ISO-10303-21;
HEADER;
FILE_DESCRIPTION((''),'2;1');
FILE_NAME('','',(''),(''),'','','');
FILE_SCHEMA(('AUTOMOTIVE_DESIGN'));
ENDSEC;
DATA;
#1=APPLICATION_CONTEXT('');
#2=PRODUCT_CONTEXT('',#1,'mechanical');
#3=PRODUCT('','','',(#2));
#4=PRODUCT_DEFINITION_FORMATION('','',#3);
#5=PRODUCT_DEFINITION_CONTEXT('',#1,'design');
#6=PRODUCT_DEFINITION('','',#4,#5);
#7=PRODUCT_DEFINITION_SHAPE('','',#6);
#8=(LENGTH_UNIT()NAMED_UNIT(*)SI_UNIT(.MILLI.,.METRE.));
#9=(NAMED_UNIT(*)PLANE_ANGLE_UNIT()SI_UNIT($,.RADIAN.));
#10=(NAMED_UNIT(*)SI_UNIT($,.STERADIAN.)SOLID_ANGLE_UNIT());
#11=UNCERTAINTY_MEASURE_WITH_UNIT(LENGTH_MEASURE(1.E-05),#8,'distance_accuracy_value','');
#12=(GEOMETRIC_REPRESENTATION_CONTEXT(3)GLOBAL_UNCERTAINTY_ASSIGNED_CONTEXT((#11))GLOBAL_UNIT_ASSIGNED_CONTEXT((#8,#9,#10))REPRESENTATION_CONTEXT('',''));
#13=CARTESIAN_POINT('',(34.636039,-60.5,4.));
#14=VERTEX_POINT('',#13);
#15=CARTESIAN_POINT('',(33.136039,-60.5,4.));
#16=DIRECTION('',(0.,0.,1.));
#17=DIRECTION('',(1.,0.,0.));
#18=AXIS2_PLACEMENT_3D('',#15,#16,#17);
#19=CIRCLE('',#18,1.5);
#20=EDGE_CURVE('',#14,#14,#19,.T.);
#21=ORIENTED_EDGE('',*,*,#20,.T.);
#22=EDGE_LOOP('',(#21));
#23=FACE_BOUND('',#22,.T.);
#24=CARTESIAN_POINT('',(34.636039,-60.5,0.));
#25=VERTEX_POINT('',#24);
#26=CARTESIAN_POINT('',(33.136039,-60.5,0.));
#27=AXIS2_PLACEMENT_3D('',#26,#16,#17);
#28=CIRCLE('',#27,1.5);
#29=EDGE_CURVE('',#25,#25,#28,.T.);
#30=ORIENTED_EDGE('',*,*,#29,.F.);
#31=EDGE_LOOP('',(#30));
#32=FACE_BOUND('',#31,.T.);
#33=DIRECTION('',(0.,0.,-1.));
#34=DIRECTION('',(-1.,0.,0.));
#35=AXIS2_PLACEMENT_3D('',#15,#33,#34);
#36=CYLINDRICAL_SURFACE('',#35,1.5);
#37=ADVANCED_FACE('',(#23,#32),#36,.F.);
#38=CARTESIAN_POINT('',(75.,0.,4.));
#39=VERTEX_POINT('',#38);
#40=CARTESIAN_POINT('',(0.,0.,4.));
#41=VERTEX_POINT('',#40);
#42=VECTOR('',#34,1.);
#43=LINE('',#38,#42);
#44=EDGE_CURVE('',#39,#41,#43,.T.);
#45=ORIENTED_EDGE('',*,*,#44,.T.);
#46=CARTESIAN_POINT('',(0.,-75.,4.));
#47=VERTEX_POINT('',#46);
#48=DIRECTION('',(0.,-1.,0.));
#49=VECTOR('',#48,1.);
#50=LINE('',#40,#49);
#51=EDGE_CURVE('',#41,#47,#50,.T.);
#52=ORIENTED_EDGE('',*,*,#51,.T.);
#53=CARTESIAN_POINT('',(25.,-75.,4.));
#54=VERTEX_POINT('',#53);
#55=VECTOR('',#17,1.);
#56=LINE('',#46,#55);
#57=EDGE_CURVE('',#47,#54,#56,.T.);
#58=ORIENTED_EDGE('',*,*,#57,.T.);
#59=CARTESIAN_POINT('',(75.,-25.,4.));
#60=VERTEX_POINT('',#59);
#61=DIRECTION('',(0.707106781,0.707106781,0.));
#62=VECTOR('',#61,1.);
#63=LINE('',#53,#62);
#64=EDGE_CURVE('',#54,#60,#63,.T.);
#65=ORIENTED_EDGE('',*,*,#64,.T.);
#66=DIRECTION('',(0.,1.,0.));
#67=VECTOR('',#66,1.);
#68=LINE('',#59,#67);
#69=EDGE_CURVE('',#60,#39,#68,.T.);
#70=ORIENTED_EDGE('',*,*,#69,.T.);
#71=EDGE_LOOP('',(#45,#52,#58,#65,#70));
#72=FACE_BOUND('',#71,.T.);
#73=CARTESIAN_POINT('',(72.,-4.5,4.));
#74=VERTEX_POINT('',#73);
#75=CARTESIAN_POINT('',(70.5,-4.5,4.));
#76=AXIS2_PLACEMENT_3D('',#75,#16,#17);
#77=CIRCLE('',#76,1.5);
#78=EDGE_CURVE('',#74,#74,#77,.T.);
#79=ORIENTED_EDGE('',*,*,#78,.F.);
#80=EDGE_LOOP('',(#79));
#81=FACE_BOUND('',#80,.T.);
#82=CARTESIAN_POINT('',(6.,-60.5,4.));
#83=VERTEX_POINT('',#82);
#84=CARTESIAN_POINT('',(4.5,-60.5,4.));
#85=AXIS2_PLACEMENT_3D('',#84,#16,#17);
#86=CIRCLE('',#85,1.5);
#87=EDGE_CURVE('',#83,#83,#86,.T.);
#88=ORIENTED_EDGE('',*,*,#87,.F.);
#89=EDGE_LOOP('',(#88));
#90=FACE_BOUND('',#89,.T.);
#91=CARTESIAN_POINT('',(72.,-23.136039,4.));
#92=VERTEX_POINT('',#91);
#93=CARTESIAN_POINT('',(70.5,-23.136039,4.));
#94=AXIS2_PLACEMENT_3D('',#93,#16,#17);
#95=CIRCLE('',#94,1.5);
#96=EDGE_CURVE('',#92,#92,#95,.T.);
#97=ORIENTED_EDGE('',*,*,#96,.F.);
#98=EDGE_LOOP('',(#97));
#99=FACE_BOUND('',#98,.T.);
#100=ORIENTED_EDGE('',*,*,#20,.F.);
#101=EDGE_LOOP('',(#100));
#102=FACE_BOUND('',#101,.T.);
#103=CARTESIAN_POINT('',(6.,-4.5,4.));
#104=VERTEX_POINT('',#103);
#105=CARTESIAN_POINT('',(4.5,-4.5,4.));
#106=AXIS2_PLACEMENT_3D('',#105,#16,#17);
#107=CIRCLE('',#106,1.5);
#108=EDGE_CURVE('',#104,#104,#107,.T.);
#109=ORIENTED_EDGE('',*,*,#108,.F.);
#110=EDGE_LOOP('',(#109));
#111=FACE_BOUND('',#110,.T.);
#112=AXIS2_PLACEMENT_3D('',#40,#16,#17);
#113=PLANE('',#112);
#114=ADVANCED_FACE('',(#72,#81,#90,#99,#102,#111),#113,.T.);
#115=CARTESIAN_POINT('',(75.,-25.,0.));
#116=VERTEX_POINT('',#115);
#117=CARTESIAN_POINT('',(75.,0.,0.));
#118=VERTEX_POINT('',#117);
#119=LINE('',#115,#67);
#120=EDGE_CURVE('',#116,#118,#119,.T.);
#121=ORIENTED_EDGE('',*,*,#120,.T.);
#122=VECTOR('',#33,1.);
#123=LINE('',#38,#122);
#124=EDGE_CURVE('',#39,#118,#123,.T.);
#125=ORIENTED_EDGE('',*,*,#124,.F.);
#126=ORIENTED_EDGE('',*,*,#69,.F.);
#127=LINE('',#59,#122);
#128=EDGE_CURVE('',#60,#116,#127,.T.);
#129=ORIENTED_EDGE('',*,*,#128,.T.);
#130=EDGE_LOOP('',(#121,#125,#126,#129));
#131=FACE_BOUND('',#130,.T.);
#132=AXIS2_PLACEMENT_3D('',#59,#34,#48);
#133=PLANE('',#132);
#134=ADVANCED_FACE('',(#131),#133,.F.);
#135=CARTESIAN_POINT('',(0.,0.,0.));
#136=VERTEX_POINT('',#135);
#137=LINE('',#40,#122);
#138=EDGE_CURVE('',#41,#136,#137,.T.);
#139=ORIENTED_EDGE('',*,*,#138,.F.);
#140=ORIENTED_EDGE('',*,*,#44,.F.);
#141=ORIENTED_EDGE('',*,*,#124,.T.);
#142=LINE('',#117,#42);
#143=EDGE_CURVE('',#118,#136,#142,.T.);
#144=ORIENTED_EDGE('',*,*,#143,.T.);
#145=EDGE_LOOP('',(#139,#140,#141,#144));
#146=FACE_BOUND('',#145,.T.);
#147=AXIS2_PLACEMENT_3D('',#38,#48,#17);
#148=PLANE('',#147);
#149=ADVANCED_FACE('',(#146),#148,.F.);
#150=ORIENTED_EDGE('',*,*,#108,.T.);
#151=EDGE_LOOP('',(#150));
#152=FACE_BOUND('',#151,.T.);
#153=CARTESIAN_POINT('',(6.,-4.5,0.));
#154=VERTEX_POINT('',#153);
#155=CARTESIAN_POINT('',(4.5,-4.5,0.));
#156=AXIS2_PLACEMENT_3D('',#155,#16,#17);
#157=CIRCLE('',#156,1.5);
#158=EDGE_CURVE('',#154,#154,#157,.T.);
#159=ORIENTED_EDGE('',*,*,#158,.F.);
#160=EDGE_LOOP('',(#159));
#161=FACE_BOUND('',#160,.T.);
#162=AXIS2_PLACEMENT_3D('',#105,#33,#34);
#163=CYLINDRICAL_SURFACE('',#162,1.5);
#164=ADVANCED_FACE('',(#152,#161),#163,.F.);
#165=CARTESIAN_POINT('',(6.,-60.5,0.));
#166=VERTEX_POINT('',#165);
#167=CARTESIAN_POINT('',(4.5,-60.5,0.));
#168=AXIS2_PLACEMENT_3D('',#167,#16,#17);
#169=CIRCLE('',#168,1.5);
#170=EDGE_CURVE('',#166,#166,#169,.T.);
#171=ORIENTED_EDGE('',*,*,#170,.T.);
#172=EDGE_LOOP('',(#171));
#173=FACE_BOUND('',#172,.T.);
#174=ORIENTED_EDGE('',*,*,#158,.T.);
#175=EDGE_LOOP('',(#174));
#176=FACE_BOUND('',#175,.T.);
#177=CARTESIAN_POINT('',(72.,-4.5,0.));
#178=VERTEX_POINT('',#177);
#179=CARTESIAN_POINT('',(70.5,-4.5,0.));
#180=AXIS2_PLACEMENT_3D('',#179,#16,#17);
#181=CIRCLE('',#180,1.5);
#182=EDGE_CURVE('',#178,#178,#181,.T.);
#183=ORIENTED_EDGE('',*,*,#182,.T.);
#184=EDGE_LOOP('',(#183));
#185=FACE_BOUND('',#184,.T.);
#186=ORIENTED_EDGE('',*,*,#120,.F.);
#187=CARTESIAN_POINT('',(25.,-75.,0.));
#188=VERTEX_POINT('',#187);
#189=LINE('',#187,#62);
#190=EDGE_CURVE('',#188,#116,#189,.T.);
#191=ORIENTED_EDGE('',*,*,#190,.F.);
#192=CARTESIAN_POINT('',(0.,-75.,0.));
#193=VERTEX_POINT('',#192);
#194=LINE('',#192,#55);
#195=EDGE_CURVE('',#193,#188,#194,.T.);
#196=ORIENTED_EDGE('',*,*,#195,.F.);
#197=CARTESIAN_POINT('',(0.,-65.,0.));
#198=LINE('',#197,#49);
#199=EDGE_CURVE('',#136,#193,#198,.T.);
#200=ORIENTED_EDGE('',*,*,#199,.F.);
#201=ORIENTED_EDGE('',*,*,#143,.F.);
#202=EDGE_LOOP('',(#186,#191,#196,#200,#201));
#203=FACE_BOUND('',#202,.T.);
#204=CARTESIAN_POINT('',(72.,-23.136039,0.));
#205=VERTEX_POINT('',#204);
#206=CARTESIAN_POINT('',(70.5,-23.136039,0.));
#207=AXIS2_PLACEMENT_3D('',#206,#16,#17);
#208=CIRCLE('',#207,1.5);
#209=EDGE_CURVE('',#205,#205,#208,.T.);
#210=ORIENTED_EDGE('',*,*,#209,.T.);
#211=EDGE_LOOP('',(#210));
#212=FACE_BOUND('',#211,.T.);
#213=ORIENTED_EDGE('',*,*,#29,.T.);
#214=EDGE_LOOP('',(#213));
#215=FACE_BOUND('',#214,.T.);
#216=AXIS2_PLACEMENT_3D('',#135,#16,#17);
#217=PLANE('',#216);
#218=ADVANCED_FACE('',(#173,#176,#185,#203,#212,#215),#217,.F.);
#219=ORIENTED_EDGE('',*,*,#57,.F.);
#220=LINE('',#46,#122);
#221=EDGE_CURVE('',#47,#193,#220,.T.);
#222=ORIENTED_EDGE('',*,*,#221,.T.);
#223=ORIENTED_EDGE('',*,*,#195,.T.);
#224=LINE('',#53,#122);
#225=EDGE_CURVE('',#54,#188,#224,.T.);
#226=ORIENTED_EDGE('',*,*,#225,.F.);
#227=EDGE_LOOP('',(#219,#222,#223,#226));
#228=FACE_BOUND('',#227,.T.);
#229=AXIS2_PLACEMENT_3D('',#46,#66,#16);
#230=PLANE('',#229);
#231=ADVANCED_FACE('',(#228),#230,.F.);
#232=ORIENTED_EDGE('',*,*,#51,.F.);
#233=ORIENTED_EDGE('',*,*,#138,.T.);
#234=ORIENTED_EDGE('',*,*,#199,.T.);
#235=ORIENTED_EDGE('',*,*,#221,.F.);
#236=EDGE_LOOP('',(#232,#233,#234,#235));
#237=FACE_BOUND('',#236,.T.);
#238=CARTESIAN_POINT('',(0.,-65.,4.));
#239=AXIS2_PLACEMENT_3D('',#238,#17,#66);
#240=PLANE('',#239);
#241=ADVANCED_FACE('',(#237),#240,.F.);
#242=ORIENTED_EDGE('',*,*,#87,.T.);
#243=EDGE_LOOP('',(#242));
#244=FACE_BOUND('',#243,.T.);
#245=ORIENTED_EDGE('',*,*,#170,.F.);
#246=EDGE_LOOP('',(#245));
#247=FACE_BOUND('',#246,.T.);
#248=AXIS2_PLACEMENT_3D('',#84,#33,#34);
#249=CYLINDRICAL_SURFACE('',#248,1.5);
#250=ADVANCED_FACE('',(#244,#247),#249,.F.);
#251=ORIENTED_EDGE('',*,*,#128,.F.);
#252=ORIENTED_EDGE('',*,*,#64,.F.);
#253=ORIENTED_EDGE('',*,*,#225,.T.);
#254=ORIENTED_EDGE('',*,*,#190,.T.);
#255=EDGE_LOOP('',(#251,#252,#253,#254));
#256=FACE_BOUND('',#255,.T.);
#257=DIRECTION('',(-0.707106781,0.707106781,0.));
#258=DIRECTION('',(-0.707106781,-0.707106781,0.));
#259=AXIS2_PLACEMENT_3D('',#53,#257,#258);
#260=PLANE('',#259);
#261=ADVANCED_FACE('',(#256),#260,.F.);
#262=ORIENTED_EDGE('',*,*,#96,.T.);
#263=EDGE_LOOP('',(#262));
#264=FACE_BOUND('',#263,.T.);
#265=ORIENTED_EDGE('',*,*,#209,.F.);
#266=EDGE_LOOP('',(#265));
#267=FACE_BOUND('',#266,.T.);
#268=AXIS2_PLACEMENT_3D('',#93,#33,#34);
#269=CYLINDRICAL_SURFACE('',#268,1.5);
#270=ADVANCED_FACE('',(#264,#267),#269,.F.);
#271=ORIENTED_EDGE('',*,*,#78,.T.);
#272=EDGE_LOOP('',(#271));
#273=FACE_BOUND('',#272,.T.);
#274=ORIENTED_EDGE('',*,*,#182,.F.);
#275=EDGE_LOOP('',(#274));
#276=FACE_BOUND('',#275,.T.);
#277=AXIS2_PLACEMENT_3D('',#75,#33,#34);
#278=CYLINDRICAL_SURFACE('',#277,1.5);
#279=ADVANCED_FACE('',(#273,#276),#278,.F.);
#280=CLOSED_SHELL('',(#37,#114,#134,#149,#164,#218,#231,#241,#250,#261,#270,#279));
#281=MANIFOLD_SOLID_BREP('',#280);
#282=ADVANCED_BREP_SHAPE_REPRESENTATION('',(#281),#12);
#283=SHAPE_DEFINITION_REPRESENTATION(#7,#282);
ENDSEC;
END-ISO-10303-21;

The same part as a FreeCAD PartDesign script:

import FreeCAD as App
import Part
import Sketcher

V = App.Vector
Q = App.Units.Quantity

doc = App.newDocument("Part")
body = doc.addObject("PartDesign::Body", "Body")

sketch1 = body.newObject("Sketcher::SketchObject", "Sketch")
sketch1.AttachmentSupport = (doc.getObject("XY_Plane"), [""])
sketch1.MapMode = "FlatFace"
sketch1.addGeometry([
    Part.LineSegment(V(0, 0, 0), V(0, -75, 0)),
    Part.LineSegment(V(0, -75, 0), V(25, -75, 0)),
    Part.LineSegment(V(25, -75, 0), V(75, -25, 0)),
    Part.LineSegment(V(75, -25, 0), V(75, 0, 0)),
    Part.LineSegment(V(75, 0, 0), V(0, 0, 0)),
    Part.Circle(V(4.5, -60.5, 0), V(0, 0, 1), 1.5),
    Part.Circle(V(33.1, -60.5, 0), V(0, 0, 1), 1.5),
    Part.Circle(V(4.5, -4.5, 0), V(0, 0, 1), 1.5),
    Part.Circle(V(70.5, -23.1, 0), V(0, 0, 1), 1.5),
    Part.Circle(V(70.5, -4.5, 0), V(0, 0, 1), 1.5),
], False)
sketch1.addConstraint([
    Sketcher.Constraint("Coincident", 0, 2, 1, 1),
    Sketcher.Constraint("Coincident", 1, 2, 2, 1),
    Sketcher.Constraint("Coincident", 2, 2, 3, 1),
    Sketcher.Constraint("Coincident", 3, 2, 4, 1),
    Sketcher.Constraint("Coincident", 4, 2, 0, 1),
    Sketcher.Constraint("Vertical", 0),
    Sketcher.Constraint("Horizontal", 1),
    Sketcher.Constraint("Vertical", 3),
    Sketcher.Constraint("Horizontal", 4),
    Sketcher.Constraint("Coincident", 4, 2, -1, 1),
    Sketcher.Constraint("Equal", 5, 6),
    Sketcher.Constraint("Equal", 6, 7),
    Sketcher.Constraint("Equal", 7, 8),
    Sketcher.Constraint("Equal", 8, 9),
    Sketcher.Constraint("Horizontal", 5, 3, 6, 3),
    Sketcher.Constraint("Horizontal", 7, 3, 9, 3),
    Sketcher.Constraint("Vertical", 5, 3, 7, 3),
    Sketcher.Constraint("Vertical", 8, 3, 9, 3),
    Sketcher.Constraint("Equal", 4, 0),
    Sketcher.Constraint("Equal", 1, 3),
    Sketcher.Constraint("Diameter", 5, Q("3 mm")),
    Sketcher.Constraint("DistanceX", 1, 1, 1, 2, Q("25 mm")),
    Sketcher.Constraint("DistanceX", 4, 2, 4, 1, Q("75 mm")),
    Sketcher.Constraint("DistanceY", 5, 3, 7, 3, Q("56 mm")),
    Sketcher.Constraint("DistanceX", 7, 3, 8, 3, Q("66 mm")),
    Sketcher.Constraint("DistanceX", -1, 1, 5, 3, Q("4.5 mm")),
    Sketcher.Constraint("DistanceY", 5, 3, -1, 1, Q("60.5 mm")),
    Sketcher.Constraint("DistanceX", -1, 1, 6, 3, Q("33.136039 mm")),
    Sketcher.Constraint("DistanceY", 8, 3, -1, 1, Q("23.136039 mm")),
])
pad1 = body.newObject("PartDesign::Pad", "Pad")
pad1.Profile = sketch1
pad1.Length = 4

doc.recompute()
